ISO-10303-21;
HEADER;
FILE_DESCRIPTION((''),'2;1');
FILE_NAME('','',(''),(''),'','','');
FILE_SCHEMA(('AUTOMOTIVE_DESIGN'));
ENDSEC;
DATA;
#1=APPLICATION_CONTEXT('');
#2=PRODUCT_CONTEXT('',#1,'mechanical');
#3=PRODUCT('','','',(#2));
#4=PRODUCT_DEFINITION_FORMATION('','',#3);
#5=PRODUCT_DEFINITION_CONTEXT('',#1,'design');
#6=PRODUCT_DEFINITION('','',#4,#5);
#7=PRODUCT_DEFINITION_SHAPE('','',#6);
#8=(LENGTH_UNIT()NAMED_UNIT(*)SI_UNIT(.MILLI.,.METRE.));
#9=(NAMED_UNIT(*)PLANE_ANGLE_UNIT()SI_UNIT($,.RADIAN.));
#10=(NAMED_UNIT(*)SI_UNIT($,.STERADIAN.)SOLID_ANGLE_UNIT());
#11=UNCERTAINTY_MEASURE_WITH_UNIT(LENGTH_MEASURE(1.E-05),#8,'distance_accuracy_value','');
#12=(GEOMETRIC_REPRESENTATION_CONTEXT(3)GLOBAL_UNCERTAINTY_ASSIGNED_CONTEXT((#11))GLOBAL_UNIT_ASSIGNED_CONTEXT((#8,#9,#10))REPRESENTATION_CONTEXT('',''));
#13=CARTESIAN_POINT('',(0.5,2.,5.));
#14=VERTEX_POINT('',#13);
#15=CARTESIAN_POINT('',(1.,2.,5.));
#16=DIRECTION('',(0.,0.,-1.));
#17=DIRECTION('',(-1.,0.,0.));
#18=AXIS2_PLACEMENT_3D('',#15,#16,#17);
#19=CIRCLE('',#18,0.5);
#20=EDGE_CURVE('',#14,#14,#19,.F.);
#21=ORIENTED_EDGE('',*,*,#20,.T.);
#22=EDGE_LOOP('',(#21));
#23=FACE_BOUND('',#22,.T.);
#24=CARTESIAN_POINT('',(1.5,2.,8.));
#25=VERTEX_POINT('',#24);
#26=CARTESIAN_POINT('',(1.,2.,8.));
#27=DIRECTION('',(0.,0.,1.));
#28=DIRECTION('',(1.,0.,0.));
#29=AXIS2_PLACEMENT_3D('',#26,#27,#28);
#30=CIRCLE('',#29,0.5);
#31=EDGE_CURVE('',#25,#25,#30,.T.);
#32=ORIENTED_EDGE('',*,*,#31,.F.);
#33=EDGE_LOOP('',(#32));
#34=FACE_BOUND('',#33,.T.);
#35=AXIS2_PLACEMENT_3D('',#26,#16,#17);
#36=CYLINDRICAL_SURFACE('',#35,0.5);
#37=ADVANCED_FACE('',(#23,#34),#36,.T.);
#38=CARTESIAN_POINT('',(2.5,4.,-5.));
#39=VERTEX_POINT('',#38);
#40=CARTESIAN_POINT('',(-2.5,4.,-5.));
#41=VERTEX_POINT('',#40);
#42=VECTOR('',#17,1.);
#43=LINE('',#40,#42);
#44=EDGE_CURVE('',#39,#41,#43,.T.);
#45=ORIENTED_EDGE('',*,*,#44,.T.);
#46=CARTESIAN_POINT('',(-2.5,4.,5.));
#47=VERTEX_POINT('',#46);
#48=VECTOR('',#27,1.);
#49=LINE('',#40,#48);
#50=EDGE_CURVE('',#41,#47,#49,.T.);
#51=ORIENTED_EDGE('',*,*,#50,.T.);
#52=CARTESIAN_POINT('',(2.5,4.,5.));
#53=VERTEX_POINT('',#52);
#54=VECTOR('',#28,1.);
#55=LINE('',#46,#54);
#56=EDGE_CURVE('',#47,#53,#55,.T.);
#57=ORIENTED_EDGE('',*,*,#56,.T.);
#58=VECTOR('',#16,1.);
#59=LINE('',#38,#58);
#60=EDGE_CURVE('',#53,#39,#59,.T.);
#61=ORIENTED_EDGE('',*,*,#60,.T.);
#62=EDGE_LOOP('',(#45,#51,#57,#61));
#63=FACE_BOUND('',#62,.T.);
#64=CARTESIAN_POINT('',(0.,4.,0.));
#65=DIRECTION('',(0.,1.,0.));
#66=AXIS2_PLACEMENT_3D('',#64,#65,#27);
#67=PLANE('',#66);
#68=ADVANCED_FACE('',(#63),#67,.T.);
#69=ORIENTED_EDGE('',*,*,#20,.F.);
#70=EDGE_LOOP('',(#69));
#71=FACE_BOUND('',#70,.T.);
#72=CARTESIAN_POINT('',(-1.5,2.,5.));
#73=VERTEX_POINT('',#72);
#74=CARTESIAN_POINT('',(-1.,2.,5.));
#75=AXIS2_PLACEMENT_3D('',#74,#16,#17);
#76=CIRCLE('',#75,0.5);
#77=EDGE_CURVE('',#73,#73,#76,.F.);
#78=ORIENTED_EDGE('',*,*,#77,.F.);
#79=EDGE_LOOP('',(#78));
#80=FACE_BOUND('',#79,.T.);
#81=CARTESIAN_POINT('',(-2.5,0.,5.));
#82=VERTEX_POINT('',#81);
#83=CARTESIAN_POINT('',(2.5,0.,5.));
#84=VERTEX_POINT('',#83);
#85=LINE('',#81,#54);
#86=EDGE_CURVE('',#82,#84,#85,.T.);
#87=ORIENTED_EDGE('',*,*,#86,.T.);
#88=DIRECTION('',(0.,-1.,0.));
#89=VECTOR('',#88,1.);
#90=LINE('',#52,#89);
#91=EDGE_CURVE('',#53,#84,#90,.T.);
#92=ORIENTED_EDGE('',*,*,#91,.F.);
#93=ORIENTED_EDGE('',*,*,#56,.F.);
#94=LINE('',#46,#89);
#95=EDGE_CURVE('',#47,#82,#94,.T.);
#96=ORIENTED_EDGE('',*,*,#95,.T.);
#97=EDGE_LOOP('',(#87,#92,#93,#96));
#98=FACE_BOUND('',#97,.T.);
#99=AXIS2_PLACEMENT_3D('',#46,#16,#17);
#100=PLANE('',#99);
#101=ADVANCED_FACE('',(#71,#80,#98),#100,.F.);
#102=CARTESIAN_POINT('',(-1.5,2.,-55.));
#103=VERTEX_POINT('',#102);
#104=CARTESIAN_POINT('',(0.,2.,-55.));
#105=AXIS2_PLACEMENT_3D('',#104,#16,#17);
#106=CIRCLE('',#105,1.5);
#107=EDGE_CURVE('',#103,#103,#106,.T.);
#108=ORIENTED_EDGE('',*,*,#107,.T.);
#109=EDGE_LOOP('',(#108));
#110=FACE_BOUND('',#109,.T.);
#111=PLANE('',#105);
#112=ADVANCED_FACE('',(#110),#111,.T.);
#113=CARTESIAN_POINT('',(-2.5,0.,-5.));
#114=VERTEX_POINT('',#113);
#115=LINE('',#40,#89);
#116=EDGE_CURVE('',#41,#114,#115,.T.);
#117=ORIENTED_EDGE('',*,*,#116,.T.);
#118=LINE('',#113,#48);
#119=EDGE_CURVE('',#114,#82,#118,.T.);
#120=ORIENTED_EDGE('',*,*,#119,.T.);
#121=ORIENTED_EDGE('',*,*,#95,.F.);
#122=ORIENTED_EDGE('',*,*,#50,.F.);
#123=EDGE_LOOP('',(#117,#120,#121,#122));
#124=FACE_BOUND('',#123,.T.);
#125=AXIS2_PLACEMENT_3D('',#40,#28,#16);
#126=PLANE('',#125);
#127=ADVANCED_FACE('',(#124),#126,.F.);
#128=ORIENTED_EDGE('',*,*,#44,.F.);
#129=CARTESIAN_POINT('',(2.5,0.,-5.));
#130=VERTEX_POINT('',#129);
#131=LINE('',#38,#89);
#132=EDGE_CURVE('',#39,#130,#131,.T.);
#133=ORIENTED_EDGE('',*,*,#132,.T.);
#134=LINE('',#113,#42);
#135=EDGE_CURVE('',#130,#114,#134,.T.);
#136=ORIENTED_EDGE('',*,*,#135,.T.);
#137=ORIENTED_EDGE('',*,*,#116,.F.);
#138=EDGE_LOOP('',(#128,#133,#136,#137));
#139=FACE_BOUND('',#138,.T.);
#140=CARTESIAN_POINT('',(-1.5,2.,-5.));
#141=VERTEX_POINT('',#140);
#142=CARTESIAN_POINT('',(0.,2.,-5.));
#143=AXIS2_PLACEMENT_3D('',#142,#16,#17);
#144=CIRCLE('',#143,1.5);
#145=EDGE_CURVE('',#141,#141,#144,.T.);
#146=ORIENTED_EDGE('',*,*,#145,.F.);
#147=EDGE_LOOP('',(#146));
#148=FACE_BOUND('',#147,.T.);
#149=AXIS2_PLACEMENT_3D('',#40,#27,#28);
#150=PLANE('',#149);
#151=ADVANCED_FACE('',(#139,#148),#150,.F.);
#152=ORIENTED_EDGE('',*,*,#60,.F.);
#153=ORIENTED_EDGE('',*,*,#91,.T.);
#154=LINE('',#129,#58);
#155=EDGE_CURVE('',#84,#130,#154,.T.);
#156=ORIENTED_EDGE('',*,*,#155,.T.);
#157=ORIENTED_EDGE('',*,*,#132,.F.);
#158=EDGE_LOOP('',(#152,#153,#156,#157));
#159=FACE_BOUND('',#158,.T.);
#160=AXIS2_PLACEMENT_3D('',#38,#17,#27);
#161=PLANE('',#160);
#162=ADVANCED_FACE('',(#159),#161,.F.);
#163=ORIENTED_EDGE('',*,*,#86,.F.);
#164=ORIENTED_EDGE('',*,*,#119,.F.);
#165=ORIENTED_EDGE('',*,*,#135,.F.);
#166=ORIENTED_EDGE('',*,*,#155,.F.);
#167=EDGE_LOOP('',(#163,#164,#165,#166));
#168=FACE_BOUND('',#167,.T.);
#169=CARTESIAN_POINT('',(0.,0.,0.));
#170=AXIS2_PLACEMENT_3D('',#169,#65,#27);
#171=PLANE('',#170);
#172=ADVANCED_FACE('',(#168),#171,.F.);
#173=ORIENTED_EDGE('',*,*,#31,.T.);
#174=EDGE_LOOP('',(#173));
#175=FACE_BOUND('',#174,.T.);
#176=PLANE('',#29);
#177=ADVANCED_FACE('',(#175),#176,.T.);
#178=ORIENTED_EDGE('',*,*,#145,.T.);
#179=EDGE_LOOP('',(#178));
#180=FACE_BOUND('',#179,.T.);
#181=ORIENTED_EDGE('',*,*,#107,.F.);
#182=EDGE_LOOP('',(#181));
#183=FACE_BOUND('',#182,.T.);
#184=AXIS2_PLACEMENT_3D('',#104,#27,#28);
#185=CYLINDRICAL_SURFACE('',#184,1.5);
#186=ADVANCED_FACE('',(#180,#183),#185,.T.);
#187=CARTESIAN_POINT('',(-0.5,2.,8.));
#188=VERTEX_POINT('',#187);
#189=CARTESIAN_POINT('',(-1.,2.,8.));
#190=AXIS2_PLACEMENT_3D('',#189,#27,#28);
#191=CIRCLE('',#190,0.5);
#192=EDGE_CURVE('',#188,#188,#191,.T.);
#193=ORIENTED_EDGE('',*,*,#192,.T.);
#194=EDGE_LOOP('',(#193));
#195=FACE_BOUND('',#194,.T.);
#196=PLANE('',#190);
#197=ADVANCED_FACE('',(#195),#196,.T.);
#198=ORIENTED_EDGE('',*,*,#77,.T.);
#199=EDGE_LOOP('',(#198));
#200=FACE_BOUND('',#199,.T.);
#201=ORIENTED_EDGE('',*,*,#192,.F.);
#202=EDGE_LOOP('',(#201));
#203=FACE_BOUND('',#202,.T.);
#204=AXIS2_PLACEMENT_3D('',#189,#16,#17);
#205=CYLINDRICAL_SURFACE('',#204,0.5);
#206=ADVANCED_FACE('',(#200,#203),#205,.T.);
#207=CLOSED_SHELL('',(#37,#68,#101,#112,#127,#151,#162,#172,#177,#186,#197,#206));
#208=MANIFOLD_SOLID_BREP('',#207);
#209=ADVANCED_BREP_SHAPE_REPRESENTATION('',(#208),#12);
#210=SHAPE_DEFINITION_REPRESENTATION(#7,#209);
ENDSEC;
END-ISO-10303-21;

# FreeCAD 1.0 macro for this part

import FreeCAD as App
import Part
import Sketcher

V = App.Vector

doc = App.newDocument("Part")
body = doc.addObject("PartDesign::Body", "Body")

# Sketch on XZ plane
sketch1 = body.newObject("Sketcher::SketchObject", "Sketch")
sketch1.AttachmentSupport = (doc.getObject("XZ_Plane"), [""])
sketch1.MapMode = "FlatFace"
sketch1.addGeometry([
    Part.LineSegment(V(-2.5, -5, 0), V(-2.5, 5, 0)),
    Part.LineSegment(V(-2.5, 5, 0), V(2.5, 5, 0)),
    Part.LineSegment(V(2.5, 5, 0), V(2.5, -5, 0)),
    Part.LineSegment(V(2.5, -5, 0), V(-2.5, -5, 0)),
], False)
sketch1.addConstraint([
    Sketcher.Constraint("Coincident", 0, 2, 1, 1),
    Sketcher.Constraint("Coincident", 1, 2, 2, 1),
    Sketcher.Constraint("Coincident", 2, 2, 3, 1),
    Sketcher.Constraint("Coincident", 3, 2, 0, 1),
    Sketcher.Constraint("Vertical", 0),
    Sketcher.Constraint("Horizontal", 1),
    Sketcher.Constraint("Vertical", 2),
    Sketcher.Constraint("Horizontal", 3),
    Sketcher.Constraint("Symmetric", 0, 2, 2, 2, -1, 1),
    Sketcher.Constraint("DistanceX", 1, 1, 1, 2, 5.0),
    Sketcher.Constraint("DistanceY", 0, 1, 0, 2, 10.0),
])
pad1 = body.newObject("PartDesign::Pad", "Pad")
pad1.Profile = sketch1
pad1.Length = 4
pad1.Reversed = True

# Sketch on XY plane
sketch2 = body.newObject("Sketcher::SketchObject", "Sketch001")
sketch2.AttachmentSupport = (doc.getObject("XY_Plane"), [""])
sketch2.MapMode = "FlatFace"
sketch2.AttachmentOffset = App.Placement(V(0, 0, 5), App.Rotation())
sketch2.addGeometry([
    Part.Circle(V(-1, 2, 0), V(0, 0, 1), 0.5),
    Part.Circle(V(1, 2, 0), V(0, 0, 1), 0.5),
], False)
sketch2.addConstraint([
    Sketcher.Constraint("Equal", 0, 1),
    Sketcher.Constraint("Symmetric", 0, 3, 1, 3, -2),
    Sketcher.Constraint("Diameter", 0, 1.0),
    Sketcher.Constraint("DistanceX", 0, 3, -1, 1, 1.0),
    Sketcher.Constraint("DistanceY", -1, 1, 0, 3, 2.0),
])
pad2 = body.newObject("PartDesign::Pad", "Pad001")
pad2.Profile = sketch2
pad2.Length = 3

# Sketch on XY plane
sketch3 = body.newObject("Sketcher::SketchObject", "Sketch002")
sketch3.AttachmentSupport = (doc.getObject("XY_Plane"), [""])
sketch3.MapMode = "FlatFace"
sketch3.AttachmentOffset = App.Placement(V(0, 0, -5), App.Rotation())
sketch3.addGeometry(Part.Circle(V(0, 2, 0), V(0, 0, 1), 1.5), False)
sketch3.addConstraint([
    Sketcher.Constraint("PointOnObject", 0, 3, -2),
    Sketcher.Constraint("Diameter", 0, 3.0),
    Sketcher.Constraint("DistanceY", -1, 1, 0, 3, 2.0),
])
pad3 = body.newObject("PartDesign::Pad", "Pad002")
pad3.Profile = sketch3
pad3.Length = 50
pad3.Reversed = True

doc.recompute()
